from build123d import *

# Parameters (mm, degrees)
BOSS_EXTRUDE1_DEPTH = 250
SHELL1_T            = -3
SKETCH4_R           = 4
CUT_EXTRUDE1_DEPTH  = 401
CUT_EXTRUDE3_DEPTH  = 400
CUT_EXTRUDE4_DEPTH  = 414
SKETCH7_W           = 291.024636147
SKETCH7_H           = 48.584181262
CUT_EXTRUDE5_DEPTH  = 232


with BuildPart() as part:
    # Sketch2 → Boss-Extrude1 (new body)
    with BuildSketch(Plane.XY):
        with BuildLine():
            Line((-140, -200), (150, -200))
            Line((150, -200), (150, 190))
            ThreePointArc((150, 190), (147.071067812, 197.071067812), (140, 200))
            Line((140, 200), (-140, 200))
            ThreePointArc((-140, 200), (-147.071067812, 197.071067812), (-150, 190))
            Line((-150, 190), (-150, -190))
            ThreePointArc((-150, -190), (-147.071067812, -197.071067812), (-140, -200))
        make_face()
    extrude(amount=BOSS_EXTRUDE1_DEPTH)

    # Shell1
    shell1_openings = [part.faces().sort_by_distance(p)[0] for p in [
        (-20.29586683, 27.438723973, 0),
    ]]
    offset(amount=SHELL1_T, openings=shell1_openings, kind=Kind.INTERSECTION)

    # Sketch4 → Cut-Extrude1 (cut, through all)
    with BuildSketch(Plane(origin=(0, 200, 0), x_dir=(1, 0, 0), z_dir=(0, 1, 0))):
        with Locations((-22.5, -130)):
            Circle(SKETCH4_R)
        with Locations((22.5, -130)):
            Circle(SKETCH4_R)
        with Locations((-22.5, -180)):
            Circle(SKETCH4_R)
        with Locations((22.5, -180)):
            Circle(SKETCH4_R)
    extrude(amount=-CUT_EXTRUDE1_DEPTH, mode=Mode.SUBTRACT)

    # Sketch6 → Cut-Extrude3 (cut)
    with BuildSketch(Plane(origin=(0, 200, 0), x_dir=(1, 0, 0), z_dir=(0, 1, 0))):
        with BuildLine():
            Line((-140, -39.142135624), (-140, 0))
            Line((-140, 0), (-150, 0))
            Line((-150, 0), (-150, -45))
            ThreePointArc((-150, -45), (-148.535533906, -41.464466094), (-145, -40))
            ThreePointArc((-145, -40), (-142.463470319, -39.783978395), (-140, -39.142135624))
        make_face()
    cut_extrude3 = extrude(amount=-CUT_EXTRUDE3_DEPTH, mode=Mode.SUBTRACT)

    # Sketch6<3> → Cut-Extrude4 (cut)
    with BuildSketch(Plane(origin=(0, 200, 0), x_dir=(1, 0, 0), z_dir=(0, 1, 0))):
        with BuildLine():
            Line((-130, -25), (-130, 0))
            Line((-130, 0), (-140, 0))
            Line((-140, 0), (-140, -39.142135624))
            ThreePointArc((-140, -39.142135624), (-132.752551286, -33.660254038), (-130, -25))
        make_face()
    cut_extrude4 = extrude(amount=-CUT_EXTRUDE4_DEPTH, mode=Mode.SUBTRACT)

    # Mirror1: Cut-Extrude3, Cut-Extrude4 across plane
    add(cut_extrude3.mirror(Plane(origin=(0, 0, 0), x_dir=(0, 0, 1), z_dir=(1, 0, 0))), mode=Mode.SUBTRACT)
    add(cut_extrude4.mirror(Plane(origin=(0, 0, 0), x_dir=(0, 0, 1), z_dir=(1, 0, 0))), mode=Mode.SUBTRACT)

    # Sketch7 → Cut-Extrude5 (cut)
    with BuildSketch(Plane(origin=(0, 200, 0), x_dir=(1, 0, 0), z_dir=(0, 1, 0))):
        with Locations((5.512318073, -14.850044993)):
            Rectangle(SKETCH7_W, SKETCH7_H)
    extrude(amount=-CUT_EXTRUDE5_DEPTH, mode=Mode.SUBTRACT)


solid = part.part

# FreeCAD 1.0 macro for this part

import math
import FreeCAD as App
import Part
import Sketcher


def faces_at(feature, points):
    """Names of the faces that lie closest to the given points."""
    faces = feature.Shape.Faces
    near = lambda p: min(range(len(faces)), key=lambda i: faces[i].distToShape(Part.Vertex(*p))[0])
    return sorted({f"Face{near(p) + 1}" for p in points})


def add_polygon(sketch, points):
    """Adds a closed chain of lines whose ends are joined by coincident constraints."""
    first, n = sketch.GeometryCount, len(points)
    for a, b in zip(points, points[1:] + points[:1]):
        sketch.addGeometry(Part.LineSegment(App.Vector(*a, 0), App.Vector(*b, 0)), False)
    for i in range(n):
        sketch.addConstraint(Sketcher.Constraint("Coincident", first + i, 2, first + (i + 1) % n, 1))

doc = App.newDocument("Part")
body = doc.addObject("PartDesign::Body", "Body")

# Sketch on XY plane
sketch1 = body.newObject("Sketcher::SketchObject", "Sketch")
sketch1.AttachmentSupport = (doc.getObject("XY_Plane"), [""])
sketch1.MapMode = "FlatFace"
sketch1.addGeometry([
    Part.LineSegment(App.Vector(-140, -200, 0), App.Vector(150, -200, 0)),  # 0
    Part.LineSegment(App.Vector(150, -200, 0), App.Vector(150, 190, 0)),  # 1
    Part.ArcOfCircle(Part.Circle(App.Vector(140, 190, 0), App.Vector(0, 0, 1), 10), math.radians(0), math.radians(90)),  # 2
    Part.LineSegment(App.Vector(140, 200, 0), App.Vector(-140, 200, 0)),  # 3
    Part.ArcOfCircle(Part.Circle(App.Vector(-140, 190, 0), App.Vector(0, 0, 1), 10), math.radians(90), math.radians(180)),  # 4
    Part.LineSegment(App.Vector(-150, 190, 0), App.Vector(-150, -190, 0)),  # 5
    Part.ArcOfCircle(Part.Circle(App.Vector(-140, -190, 0), App.Vector(0, 0, 1), 10), math.radians(180), math.radians(270)),  # 6
], False)
sketch1.addConstraint([
    Sketcher.Constraint("Coincident", 0, 2, 1, 1),
    Sketcher.Constraint("Tangent", 1, 2, 2, 1),
    Sketcher.Constraint("Tangent", 2, 2, 3, 1),
    Sketcher.Constraint("Tangent", 3, 2, 4, 1),
    Sketcher.Constraint("Tangent", 4, 2, 5, 1),
    Sketcher.Constraint("Tangent", 5, 2, 6, 1),
    Sketcher.Constraint("Tangent", 6, 2, 0, 1),
    Sketcher.Constraint("Horizontal", 0),
    Sketcher.Constraint("Vertical", 1),
    Sketcher.Constraint("Horizontal", 3),
    Sketcher.Constraint("Vertical", 5),
    Sketcher.Constraint("Equal", 2, 4),
    Sketcher.Constraint("Equal", 4, 6),
    Sketcher.Constraint("Symmetric", 2, 3, 6, 3, -1, 1),
    Sketcher.Constraint("Radius", 2, 10.0),
    Sketcher.Constraint("DistanceX", 0, 1, 0, 2, 290.0),
    Sketcher.Constraint("DistanceY", 1, 1, 1, 2, 390.0),
])
pad1 = body.newObject("PartDesign::Pad", "Pad")
pad1.Profile = sketch1
pad1.Length = 250
doc.recompute()

thickness = body.newObject("PartDesign::Thickness", "Thickness")
thickness.Base = (pad1, faces_at(pad1, [(0, 0, 0)]))
thickness.Value = 3
thickness.Reversed = True
thickness.Join = "Intersection"

# Sketch on XZ plane
sketch2 = body.newObject("Sketcher::SketchObject", "Sketch001")
sketch2.AttachmentSupport = (doc.getObject("XZ_Plane"), [""])
sketch2.MapMode = "FlatFace"
sketch2.AttachmentOffset = App.Placement(App.Vector(0, 0, -200), App.Rotation())
sketch2.addGeometry([
    Part.Circle(App.Vector(-22.5, 130, 0), App.Vector(0, 0, 1), 4),
    Part.Circle(App.Vector(22.5, 130, 0), App.Vector(0, 0, 1), 4),
    Part.Circle(App.Vector(-22.5, 180, 0), App.Vector(0, 0, 1), 4),
    Part.Circle(App.Vector(22.5, 180, 0), App.Vector(0, 0, 1), 4),
], False)
sketch2.addConstraint([
    Sketcher.Constraint("Equal", 0, 1),
    Sketcher.Constraint("Equal", 1, 2),
    Sketcher.Constraint("Equal", 2, 3),
    Sketcher.Constraint("Symmetric", 0, 3, 1, 3, -2),
    Sketcher.Constraint("Symmetric", 2, 3, 3, 3, -2),
    Sketcher.Constraint("Vertical", 0, 3, 2, 3),
    Sketcher.Constraint("Diameter", 0, 8.0),
    Sketcher.Constraint("DistanceY", -1, 1, 0, 3, 130.0),
    Sketcher.Constraint("DistanceY", -1, 1, 2, 3, 180.0),
    Sketcher.Constraint("DistanceX", 0, 3, 1, 3, 45.0),
])
pocket1 = body.newObject("PartDesign::Pocket", "Pocket")
pocket1.Profile = sketch2
pocket1.Type = "ThroughAll"
pocket1.Reversed = True

# Sketch on XZ plane
sketch3 = body.newObject("Sketcher::SketchObject", "Sketch002")
sketch3.AttachmentSupport = (doc.getObject("XZ_Plane"), [""])
sketch3.MapMode = "FlatFace"
sketch3.AttachmentOffset = App.Placement(App.Vector(0, 0, -200), App.Rotation())
sketch3.addGeometry([
    Part.LineSegment(App.Vector(-140, 39.142136, 0), App.Vector(-140, 0, 0)),  # 0
    Part.LineSegment(App.Vector(-140, 0, 0), App.Vector(-150, 0, 0)),  # 1
    Part.LineSegment(App.Vector(-150, 0, 0), App.Vector(-150, 45, 0)),  # 2
    Part.ArcOfCircle(Part.Circle(App.Vector(-145, 45, 0), App.Vector(0, 0, 1), 5), math.radians(180), math.radians(270)),  # 3
    Part.ArcOfCircle(Part.Circle(App.Vector(-145, 25, 0), App.Vector(0, 0, 1), 15), math.radians(70.528779), math.radians(90)),  # 4
], False)
sketch3.addConstraint([
    Sketcher.Constraint("Coincident", 0, 2, 1, 1),
    Sketcher.Constraint("Coincident", 1, 2, 2, 1),
    Sketcher.Constraint("Tangent", 2, 2, 3, 1),
    Sketcher.Constraint("Tangent", 3, 2, 4, 2),
    Sketcher.Constraint("Coincident", 4, 1, 0, 1),
    Sketcher.Constraint("Vertical", 0),
    Sketcher.Constraint("Horizontal", 1),
    Sketcher.Constraint("Vertical", 2),
    Sketcher.Constraint("PointOnObject", 0, 2, -1),
    Sketcher.Constraint("Vertical", 3, 3, 4, 3),
    Sketcher.Constraint("Radius", 3, 5.0),
    Sketcher.Constraint("Radius", 4, 15.0),
    Sketcher.Constraint("DistanceX", 1, 2, 1, 1, 10.0),
    Sketcher.Constraint("DistanceY", 2, 1, 2, 2, 45.0),
    Sketcher.Constraint("DistanceX", 3, 3, -1, 1, 145.0),
])
pocket2 = body.newObject("PartDesign::Pocket", "Pocket001")
pocket2.Profile = sketch3
pocket2.Length = 400
pocket2.Reversed = True

# Sketch on XZ plane
sketch4 = body.newObject("Sketcher::SketchObject", "Sketch003")
sketch4.AttachmentSupport = (doc.getObject("XZ_Plane"), [""])
sketch4.MapMode = "FlatFace"
sketch4.AttachmentOffset = App.Placement(App.Vector(0, 0, -200), App.Rotation())
sketch4.addGeometry([
    Part.LineSegment(App.Vector(-130, 25, 0), App.Vector(-130, 0, 0)),
    Part.LineSegment(App.Vector(-130, 0, 0), App.Vector(-140, 0, 0)),
    Part.LineSegment(App.Vector(-140, 0, 0), App.Vector(-140, 39.142136, 0)),
    Part.ArcOfCircle(Part.Circle(App.Vector(-145, 25, 0), App.Vector(0, 0, 1), 15), math.radians(0), math.radians(70.528779)),
], False)
sketch4.addConstraint([
    Sketcher.Constraint("Coincident", 0, 2, 1, 1),
    Sketcher.Constraint("Coincident", 1, 2, 2, 1),
    Sketcher.Constraint("Coincident", 2, 2, 3, 2),
    Sketcher.Constraint("Tangent", 3, 1, 0, 1),
    Sketcher.Constraint("Vertical", 0),
    Sketcher.Constraint("Horizontal", 1),
    Sketcher.Constraint("Vertical", 2),
    Sketcher.Constraint("PointOnObject", 0, 2, -1),
    Sketcher.Constraint("Radius", 3, 15.0),
    Sketcher.Constraint("DistanceX", 1, 2, 1, 1, 10.0),
    Sketcher.Constraint("DistanceY", 0, 2, 0, 1, 25.0),
    Sketcher.Constraint("DistanceX", 3, 3, -1, 1, 145.0),
])
pocket3 = body.newObject("PartDesign::Pocket", "Pocket002")
pocket3.Profile = sketch4
pocket3.Length = 414
pocket3.Reversed = True
doc.recompute()

mirrored = body.newObject("PartDesign::Mirrored", "Mirrored")
mirrored.Originals = [pocket2, pocket3]
mirrored.MirrorPlane = (doc.getObject("YZ_Plane"), [""])
body.Tip = mirrored

# Sketch on XZ plane
sketch5 = body.newObject("Sketcher::SketchObject", "Sketch004")
sketch5.AttachmentSupport = (doc.getObject("XZ_Plane"), [""])
sketch5.MapMode = "FlatFace"
sketch5.AttachmentOffset = App.Placement(App.Vector(0, 0, -200), App.Rotation())
add_polygon(sketch5, [(-140, -9.442046), (-140, 39.142136), (151.024636, 39.142136), (151.024636, -9.442046)])  # lines 0-3
sketch5.addConstraint([
    Sketcher.Constraint("Vertical", 0),
    Sketcher.Constraint("Horizontal", 1),
    Sketcher.Constraint("Vertical", 2),
    Sketcher.Constraint("Horizontal", 3),
    Sketcher.Constraint("DistanceX", 0, 2, -1, 1, 140.0),
    Sketcher.Constraint("DistanceY", 0, 1, 0, 2, 48.584181),
    Sketcher.Constraint("DistanceX", 1, 1, 1, 2, 291.024636),
    Sketcher.Constraint("DistanceY", -1, 1, 0, 2, 39.142136),
])
pocket4 = body.newObject("PartDesign::Pocket", "Pocket003")
pocket4.Profile = sketch5
pocket4.Length = 232
pocket4.Reversed = True

doc.recompute()
